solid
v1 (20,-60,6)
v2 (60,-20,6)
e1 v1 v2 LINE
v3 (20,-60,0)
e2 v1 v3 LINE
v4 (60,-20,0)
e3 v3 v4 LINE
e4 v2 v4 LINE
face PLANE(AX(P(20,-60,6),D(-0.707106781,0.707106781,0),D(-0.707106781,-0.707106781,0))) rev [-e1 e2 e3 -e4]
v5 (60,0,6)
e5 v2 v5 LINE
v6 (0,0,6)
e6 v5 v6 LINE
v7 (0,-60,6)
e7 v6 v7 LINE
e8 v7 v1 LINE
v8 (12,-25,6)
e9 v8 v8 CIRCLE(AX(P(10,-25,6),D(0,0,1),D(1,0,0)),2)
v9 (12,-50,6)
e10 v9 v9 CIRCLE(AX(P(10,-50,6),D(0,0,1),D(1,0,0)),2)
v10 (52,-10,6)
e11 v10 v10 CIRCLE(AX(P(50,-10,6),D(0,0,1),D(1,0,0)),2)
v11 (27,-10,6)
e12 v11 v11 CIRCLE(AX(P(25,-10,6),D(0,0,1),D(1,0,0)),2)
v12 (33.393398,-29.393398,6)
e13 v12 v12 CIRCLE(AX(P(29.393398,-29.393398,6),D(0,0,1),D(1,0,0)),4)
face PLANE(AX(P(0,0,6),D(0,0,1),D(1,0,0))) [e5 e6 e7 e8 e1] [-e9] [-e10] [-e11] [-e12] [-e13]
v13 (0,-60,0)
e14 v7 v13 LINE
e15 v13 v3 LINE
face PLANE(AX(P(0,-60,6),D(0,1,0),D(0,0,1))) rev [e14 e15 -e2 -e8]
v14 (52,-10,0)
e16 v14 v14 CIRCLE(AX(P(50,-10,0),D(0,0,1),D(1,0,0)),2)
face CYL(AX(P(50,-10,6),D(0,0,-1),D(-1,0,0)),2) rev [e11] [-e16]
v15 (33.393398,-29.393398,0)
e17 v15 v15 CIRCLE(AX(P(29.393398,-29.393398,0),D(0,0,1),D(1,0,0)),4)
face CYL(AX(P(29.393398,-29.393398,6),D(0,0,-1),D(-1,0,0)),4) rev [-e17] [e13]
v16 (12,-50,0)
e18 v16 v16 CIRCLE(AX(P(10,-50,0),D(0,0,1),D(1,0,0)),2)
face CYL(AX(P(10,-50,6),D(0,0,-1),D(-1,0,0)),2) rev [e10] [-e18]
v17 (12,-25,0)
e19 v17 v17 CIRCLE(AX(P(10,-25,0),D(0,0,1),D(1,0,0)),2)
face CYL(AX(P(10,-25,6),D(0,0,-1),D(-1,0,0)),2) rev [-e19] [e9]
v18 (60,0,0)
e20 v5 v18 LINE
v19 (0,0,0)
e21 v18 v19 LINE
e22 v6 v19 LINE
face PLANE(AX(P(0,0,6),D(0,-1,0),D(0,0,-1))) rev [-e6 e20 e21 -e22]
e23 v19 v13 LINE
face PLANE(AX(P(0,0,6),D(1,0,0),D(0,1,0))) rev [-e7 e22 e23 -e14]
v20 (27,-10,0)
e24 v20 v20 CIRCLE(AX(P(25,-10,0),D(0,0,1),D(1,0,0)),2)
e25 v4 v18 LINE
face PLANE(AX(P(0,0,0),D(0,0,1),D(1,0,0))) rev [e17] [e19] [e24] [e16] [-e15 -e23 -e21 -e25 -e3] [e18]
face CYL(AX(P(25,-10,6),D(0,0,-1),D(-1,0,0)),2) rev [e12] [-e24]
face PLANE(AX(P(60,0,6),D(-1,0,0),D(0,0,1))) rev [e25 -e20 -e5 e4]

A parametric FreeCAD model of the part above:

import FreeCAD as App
import Part
import Sketcher

V = App.Vector

doc = App.newDocument("Part")
body = doc.addObject("PartDesign::Body", "Body")

# Sketch on XY plane
sketch1 = body.newObject("Sketcher::SketchObject", "Sketch")
sketch1.AttachmentSupport = (doc.getObject("XY_Plane"), [""])
sketch1.MapMode = "FlatFace"
sketch1.addGeometry([
    Part.LineSegment(V(20, -60, 0), V(60, -20, 0)),  # 0
    Part.LineSegment(V(60, -20, 0), V(60, 0, 0)),  # 1
    Part.LineSegment(V(60, 0, 0), V(0, 0, 0)),  # 2
    Part.LineSegment(V(0, 0, 0), V(0, -60, 0)),  # 3
    Part.LineSegment(V(0, -60, 0), V(20, -60, 0)),  # 4
    Part.Circle(V(10, -50, 0), V(0, 0, 1), 2),  # 5
    Part.Circle(V(10, -25, 0), V(0, 0, 1), 2),  # 6
    Part.Circle(V(29.393398, -29.393398, 0), V(0, 0, 1), 4),  # 7
    Part.Circle(V(25, -10, 0), V(0, 0, 1), 2),  # 8
    Part.Circle(V(50, -10, 0), V(0, 0, 1), 2),  # 9
], False)
sketch1.addConstraint([
    Sketcher.Constraint("Coincident", 0, 2, 1, 1),
    Sketcher.Constraint("Coincident", 1, 2, 2, 1),
    Sketcher.Constraint("Coincident", 2, 2, 3, 1),
    Sketcher.Constraint("Coincident", 3, 2, 4, 1),
    Sketcher.Constraint("Coincident", 4, 2, 0, 1),
    Sketcher.Constraint("Vertical", 1),
    Sketcher.Constraint("Horizontal", 2),
    Sketcher.Constraint("Vertical", 3),
    Sketcher.Constraint("Horizontal", 4),
    Sketcher.Constraint("Coincident", 2, 2, -1, 1),
    Sketcher.Constraint("Equal", 5, 6),
    Sketcher.Constraint("Equal", 6, 8),
    Sketcher.Constraint("Equal", 8, 9),
    Sketcher.Constraint("Horizontal", 8, 3, 9, 3),
    Sketcher.Constraint("Vertical", 5, 3, 6, 3),
    Sketcher.Constraint("Equal", 4, 1),
    Sketcher.Constraint("Equal", 2, 3),
    Sketcher.Constraint("Diameter", 5, 4.0),
    Sketcher.Constraint("Diameter", 7, 8.0),
    Sketcher.Constraint("DistanceX", 2, 2, 2, 1, 60.0),
    Sketcher.Constraint("DistanceX", 4, 1, 4, 2, 20.0),
    Sketcher.Constraint("DistanceX", -1, 1, 5, 3, 10.0),
    Sketcher.Constraint("DistanceY", 5, 3, -1, 1, 50.0),
    Sketcher.Constraint("DistanceY", 6, 3, -1, 1, 25.0),
    Sketcher.Constraint("DistanceX", -1, 1, 8, 3, 25.0),
    Sketcher.Constraint("DistanceY", 8, 3, -1, 1, 10.0),
    Sketcher.Constraint("DistanceX", -1, 1, 9, 3, 50.0),
    Sketcher.Constraint("DistanceX", -1, 1, 7, 3, 29.393398),
    Sketcher.Constraint("DistanceY", 7, 3, -1, 1, 29.393398),
])
pad1 = body.newObject("PartDesign::Pad", "Pad")
pad1.Profile = sketch1
pad1.Length = 6

doc.recompute()
